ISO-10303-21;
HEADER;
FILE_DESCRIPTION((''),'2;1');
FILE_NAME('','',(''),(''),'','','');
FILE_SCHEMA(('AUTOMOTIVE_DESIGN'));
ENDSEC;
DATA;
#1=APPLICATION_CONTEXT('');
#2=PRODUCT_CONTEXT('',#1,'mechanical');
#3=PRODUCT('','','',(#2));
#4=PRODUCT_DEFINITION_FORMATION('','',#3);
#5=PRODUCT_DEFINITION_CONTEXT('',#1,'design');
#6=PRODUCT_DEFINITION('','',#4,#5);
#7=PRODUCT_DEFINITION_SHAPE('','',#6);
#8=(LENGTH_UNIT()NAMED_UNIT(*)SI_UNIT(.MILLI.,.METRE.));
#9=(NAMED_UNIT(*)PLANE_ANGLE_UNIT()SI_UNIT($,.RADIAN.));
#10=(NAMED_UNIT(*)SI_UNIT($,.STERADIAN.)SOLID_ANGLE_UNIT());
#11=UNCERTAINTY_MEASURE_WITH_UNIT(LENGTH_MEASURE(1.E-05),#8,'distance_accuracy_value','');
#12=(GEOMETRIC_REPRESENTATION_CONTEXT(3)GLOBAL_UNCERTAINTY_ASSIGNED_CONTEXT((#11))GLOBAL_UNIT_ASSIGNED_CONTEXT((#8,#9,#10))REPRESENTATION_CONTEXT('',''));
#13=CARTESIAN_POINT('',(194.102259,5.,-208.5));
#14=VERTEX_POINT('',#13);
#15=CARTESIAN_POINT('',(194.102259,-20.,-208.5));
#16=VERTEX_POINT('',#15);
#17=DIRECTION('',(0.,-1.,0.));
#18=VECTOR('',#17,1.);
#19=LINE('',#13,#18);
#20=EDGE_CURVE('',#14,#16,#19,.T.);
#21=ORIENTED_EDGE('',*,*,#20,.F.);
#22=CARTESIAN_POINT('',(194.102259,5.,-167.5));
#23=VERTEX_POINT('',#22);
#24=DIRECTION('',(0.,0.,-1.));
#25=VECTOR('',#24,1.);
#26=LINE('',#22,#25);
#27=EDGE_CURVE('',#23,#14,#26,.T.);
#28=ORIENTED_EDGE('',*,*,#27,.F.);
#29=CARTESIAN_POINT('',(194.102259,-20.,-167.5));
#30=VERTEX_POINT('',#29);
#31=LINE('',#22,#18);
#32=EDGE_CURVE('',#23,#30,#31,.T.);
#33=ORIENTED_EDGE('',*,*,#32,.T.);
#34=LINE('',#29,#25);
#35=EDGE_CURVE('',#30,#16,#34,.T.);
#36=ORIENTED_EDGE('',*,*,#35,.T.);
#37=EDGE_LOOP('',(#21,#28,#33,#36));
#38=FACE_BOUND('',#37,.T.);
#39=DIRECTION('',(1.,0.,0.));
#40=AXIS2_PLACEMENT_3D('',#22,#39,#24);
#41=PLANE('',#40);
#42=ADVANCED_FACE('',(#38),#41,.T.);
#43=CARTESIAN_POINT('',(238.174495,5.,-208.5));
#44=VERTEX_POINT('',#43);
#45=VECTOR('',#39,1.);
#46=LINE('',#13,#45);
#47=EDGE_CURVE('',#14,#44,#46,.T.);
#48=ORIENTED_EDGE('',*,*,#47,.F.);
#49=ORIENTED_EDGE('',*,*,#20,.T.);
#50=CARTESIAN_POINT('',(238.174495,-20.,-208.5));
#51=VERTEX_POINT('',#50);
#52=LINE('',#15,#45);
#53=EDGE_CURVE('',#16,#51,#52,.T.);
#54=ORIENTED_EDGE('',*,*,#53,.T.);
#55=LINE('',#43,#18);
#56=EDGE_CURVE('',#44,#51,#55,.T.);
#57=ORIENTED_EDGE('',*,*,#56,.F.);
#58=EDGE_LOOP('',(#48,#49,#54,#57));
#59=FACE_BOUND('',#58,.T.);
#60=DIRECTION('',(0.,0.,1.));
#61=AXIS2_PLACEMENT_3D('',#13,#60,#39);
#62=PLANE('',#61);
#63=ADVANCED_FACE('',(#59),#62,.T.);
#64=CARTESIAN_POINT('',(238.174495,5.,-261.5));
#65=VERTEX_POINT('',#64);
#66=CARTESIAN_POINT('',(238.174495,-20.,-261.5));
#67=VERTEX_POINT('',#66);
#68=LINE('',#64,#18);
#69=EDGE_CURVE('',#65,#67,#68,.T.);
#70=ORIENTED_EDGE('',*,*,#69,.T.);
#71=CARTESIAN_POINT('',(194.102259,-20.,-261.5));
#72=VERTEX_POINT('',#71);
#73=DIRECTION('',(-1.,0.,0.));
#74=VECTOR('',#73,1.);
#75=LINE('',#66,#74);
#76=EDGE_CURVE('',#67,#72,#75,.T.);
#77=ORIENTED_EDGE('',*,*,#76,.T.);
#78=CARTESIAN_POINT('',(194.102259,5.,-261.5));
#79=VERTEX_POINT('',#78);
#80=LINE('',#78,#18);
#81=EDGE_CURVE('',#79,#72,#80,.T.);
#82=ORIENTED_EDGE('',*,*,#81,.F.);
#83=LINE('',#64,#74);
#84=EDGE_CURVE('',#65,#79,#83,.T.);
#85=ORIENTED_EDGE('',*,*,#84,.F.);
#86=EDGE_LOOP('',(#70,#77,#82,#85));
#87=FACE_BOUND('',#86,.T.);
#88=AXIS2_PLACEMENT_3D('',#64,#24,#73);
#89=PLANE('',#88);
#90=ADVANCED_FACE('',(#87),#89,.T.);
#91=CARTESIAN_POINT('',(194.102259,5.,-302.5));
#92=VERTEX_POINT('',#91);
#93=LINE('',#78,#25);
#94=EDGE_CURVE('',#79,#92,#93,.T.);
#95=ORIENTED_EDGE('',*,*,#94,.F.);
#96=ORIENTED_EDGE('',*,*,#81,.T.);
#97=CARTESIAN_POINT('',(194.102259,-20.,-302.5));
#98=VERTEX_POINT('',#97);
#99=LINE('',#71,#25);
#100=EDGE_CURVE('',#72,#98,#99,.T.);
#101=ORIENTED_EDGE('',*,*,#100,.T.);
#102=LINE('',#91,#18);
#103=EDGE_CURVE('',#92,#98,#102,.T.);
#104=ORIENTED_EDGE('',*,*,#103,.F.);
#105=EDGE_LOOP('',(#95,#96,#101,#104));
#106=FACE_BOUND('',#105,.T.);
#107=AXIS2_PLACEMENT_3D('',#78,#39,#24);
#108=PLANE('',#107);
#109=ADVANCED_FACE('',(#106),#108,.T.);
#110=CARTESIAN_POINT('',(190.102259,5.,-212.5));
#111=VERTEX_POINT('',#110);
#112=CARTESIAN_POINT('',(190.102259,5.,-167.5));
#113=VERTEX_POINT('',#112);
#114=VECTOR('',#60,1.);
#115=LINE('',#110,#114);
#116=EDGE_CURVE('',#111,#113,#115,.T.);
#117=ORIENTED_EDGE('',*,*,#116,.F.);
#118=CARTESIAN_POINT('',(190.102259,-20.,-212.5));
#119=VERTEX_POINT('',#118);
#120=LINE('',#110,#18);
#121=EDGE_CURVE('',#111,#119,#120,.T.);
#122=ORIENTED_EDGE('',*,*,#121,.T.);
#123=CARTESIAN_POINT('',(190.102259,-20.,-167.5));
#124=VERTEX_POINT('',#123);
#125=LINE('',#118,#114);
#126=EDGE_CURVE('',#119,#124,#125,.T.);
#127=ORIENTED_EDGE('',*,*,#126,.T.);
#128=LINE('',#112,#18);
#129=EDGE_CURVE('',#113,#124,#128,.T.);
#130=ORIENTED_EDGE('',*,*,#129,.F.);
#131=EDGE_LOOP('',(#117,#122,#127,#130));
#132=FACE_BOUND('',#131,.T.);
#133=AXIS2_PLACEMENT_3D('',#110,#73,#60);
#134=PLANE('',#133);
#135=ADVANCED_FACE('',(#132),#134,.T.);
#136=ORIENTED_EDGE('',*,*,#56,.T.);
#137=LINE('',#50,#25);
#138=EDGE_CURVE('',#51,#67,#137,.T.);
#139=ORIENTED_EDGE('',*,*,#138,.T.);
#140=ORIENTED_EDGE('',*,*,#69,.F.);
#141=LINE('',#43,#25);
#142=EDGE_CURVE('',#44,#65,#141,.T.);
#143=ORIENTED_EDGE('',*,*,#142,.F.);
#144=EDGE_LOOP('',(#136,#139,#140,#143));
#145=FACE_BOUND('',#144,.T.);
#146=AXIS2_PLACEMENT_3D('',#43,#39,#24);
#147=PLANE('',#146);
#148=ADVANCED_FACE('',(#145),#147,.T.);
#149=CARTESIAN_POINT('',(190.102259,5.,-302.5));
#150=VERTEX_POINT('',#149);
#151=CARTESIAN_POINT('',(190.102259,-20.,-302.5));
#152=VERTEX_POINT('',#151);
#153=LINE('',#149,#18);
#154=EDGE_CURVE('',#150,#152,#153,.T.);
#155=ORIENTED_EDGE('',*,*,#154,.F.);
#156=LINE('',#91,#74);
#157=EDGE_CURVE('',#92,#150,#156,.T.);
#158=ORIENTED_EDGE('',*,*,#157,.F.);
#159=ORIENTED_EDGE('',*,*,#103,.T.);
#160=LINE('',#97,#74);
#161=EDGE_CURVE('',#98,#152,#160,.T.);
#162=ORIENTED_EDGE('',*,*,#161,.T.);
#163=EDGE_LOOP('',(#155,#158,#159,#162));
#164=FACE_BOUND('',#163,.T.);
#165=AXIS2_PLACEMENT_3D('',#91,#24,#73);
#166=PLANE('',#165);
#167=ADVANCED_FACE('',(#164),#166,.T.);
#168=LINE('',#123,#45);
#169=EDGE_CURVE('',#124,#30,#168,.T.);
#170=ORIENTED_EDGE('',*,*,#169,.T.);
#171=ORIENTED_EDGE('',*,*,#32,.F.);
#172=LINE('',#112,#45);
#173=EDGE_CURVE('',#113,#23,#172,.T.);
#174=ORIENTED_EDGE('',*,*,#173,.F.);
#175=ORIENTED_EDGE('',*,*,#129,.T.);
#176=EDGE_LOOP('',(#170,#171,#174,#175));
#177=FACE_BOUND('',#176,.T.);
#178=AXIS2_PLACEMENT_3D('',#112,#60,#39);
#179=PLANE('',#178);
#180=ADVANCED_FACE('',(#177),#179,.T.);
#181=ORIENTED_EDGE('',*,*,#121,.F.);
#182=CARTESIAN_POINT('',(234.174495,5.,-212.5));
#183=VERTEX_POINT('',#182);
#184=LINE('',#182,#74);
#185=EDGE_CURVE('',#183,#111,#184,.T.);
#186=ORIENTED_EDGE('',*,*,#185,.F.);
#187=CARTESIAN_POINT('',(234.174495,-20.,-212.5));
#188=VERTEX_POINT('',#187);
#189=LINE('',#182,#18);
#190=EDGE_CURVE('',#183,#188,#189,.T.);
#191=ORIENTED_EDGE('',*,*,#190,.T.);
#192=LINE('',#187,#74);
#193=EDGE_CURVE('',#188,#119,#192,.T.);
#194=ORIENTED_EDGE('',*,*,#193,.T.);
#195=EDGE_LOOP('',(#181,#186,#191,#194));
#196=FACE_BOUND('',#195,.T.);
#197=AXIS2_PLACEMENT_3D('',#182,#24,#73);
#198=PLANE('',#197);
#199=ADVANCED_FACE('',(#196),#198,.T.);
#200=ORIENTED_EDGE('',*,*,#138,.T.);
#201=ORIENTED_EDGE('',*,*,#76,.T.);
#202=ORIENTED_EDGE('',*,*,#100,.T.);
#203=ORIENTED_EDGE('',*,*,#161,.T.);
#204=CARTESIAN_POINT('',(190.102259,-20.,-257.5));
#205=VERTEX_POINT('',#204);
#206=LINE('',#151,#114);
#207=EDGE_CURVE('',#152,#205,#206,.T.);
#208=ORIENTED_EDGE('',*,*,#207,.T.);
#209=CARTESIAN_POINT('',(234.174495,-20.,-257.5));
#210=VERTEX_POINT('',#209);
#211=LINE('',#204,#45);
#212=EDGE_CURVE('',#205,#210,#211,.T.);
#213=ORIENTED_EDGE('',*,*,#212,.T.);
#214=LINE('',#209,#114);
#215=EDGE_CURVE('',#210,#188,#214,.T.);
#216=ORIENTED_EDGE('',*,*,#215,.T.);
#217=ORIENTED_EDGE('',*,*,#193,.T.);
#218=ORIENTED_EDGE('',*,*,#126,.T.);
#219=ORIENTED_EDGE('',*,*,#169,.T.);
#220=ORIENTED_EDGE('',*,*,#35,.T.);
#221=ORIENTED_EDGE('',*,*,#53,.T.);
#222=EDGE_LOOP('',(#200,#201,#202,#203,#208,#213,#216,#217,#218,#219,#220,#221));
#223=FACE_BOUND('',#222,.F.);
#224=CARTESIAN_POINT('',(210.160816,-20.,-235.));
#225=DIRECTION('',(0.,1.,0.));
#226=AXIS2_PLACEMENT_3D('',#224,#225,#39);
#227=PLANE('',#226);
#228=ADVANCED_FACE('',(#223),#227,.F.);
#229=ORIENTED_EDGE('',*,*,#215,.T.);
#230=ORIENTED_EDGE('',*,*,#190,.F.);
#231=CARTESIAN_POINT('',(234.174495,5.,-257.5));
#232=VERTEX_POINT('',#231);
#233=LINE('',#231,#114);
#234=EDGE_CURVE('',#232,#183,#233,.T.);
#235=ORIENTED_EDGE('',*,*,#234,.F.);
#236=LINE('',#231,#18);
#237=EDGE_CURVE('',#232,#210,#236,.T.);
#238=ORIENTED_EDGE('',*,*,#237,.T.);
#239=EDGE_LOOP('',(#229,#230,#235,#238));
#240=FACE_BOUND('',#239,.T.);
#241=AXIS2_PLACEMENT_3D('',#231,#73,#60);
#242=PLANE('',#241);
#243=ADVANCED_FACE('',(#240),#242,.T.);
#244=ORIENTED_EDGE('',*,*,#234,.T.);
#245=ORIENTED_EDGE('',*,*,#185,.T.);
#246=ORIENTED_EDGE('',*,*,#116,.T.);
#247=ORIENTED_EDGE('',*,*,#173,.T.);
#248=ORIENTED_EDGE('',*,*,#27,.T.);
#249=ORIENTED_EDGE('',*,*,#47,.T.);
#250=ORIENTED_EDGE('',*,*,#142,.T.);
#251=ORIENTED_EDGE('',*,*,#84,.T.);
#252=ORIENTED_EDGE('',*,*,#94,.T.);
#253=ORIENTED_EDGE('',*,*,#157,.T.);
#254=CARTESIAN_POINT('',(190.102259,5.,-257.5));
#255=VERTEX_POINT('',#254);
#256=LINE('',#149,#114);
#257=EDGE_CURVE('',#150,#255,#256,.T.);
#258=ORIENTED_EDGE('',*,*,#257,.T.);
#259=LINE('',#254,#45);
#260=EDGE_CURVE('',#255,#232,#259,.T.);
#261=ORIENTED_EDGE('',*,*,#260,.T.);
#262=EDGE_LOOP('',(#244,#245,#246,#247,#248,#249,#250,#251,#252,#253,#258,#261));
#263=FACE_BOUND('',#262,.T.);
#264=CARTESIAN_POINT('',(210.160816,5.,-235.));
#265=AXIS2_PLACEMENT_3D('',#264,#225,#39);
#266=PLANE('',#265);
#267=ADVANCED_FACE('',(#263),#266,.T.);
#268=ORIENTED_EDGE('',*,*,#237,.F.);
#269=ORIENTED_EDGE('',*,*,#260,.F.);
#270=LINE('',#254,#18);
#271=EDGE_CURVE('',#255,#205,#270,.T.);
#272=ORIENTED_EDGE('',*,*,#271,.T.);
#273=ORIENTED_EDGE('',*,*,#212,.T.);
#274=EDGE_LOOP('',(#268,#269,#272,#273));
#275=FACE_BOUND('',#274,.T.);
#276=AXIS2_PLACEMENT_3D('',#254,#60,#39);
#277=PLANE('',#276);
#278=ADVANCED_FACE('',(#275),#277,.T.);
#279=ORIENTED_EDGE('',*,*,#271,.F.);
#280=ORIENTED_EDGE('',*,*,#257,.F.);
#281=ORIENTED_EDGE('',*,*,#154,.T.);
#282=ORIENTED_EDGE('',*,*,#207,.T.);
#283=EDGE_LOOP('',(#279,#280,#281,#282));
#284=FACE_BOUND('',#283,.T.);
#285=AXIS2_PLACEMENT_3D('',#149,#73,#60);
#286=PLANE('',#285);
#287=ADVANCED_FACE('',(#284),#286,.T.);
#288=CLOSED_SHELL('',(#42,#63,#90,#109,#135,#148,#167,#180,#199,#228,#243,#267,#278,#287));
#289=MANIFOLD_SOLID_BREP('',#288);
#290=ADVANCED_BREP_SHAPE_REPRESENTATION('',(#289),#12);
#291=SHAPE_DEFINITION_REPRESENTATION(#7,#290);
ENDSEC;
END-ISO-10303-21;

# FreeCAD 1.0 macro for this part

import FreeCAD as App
import Part
import Sketcher

V = App.Vector


def add_polygon(sketch, points):
    """Adds a closed chain of lines whose ends are joined by coincident constraints."""
    first, n = sketch.GeometryCount, len(points)
    for a, b in zip(points, points[1:] + points[:1]):
        sketch.addGeometry(Part.LineSegment(App.Vector(*a, 0), App.Vector(*b, 0)), False)
    for i in range(n):
        sketch.addConstraint(Sketcher.Constraint("Coincident", first + i, 2, first + (i + 1) % n, 1))

doc = App.newDocument("Part")
params = doc.addObject("Spreadsheet::Sheet", "Params")
for row, (alias, value) in enumerate([
    ("sketch1_width", "4 mm"),
    ("sketch1_height", "45 mm"),
    ("sketch1_height2", "41 mm"),
    ("pad1_length", "25 mm"),
], start=1):
    params.set(f"A{row}", alias)
    params.set(f"B{row}", "=" + value)
    params.setAlias(f"B{row}", alias)

body = doc.addObject("PartDesign::Body", "Body")

# Sketch on XZ plane
sketch1 = body.newObject("Sketcher::SketchObject", "Sketch")
sketch1.AttachmentSupport = (doc.getObject("XZ_Plane"), [""])
sketch1.MapMode = "FlatFace"
sketch1.AttachmentOffset = App.Placement(V(0, 0, -5), App.Rotation())
add_polygon(sketch1, [(194.102259, -302.5), (190.102259, -302.5), (190.102259, -257.5), (234.174495, -257.5), (234.174495, -212.5), (190.102259, -212.5), (190.102259, -167.5), (194.102259, -167.5), (194.102259, -208.5), (238.174495, -208.5), (238.174495, -261.5), (194.102259, -261.5)])  # lines 0-11
sketch1.addConstraint([
    Sketcher.Constraint("Horizontal", 0),
    Sketcher.Constraint("Vertical", 1),
    Sketcher.Constraint("Horizontal", 2),
    Sketcher.Constraint("Vertical", 3),
    Sketcher.Constraint("Horizontal", 4),
    Sketcher.Constraint("Vertical", 5),
    Sketcher.Constraint("Horizontal", 6),
    Sketcher.Constraint("Vertical", 7),
    Sketcher.Constraint("Horizontal", 8),
    Sketcher.Constraint("Vertical", 9),
    Sketcher.Constraint("Horizontal", 10),
    Sketcher.Constraint("Vertical", 11),
    Sketcher.Constraint("Vertical", 1, 2, 4, 2),
    Sketcher.Constraint("Vertical", 7, 2, 10, 2),
    Sketcher.Constraint("Equal", 4, 8),
    Sketcher.Constraint("Equal", 1, 3),
    Sketcher.Constraint("Equal", 3, 5),
    Sketcher.Constraint("Equal", 7, 11),
    Sketcher.Constraint("DistanceX", 0, 2, 0, 1, 4.0),
    Sketcher.Constraint("DistanceY", 1, 1, 1, 2, 45.0),
    Sketcher.Constraint("DistanceY", 7, 2, 7, 1, 41.0),
    Sketcher.Constraint("DistanceY", 0, 2, -1, 1, 302.5),
    Sketcher.Constraint("DistanceX", 2, 1, 2, 2, 44.072236),
    Sketcher.Constraint("DistanceX", -1, 1, 0, 2, 190.102259),
])
sketch1.setExpression("Constraints[30]", "Params.sketch1_width")
sketch1.setExpression("Constraints[31]", "Params.sketch1_height")
sketch1.setExpression("Constraints[32]", "Params.sketch1_height2")
pad1 = body.newObject("PartDesign::Pad", "Pad")
pad1.Profile = sketch1
pad1.setExpression("Length", "Params.pad1_length")

doc.recompute()
